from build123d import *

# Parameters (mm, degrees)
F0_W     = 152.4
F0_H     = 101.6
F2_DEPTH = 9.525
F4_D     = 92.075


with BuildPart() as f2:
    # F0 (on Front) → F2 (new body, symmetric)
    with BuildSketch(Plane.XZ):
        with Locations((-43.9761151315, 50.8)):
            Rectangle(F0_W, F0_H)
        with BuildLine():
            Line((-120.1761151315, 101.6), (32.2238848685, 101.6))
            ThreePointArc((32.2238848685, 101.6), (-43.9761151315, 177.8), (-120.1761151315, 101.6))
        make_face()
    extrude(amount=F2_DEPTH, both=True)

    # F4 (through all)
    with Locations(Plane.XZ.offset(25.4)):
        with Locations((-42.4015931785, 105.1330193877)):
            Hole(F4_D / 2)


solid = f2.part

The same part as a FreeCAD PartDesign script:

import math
import FreeCAD as App
import Part
import Sketcher

V = App.Vector
Q = App.Units.Quantity

doc = App.newDocument("Part")
body = doc.addObject("PartDesign::Body", "Body")

sketch1 = body.newObject("Sketcher::SketchObject", "Sketch")
sketch1.AttachmentSupport = (doc.getObject("XZ_Plane"), [""])
sketch1.MapMode = "FlatFace"
sketch1.addGeometry(Part.LineSegment(V(-120.176115, 101.6, 0), V(-120.176115, 0, 0)), False)
sketch1.addGeometry(Part.LineSegment(V(-120.176115, 0, 0), V(32.223885, 0, 0)), False)
sketch1.addGeometry(Part.LineSegment(V(32.223885, 0, 0), V(32.223885, 101.6, 0)), False)
sketch1.addGeometry(Part.ArcOfCircle(Part.Circle(V(-43.976115, 101.6, 0), V(0, 0, 1), 76.2), math.radians(0), math.radians(180)), False)
sketch1.addConstraint(Sketcher.Constraint("Coincident", 0, 2, 1, 1))
sketch1.addConstraint(Sketcher.Constraint("Coincident", 1, 2, 2, 1))
sketch1.addConstraint(Sketcher.Constraint("Tangent", 2, 2, 3, 1))
sketch1.addConstraint(Sketcher.Constraint("Tangent", 3, 2, 0, 1))
sketch1.addConstraint(Sketcher.Constraint("Vertical", 0))
sketch1.addConstraint(Sketcher.Constraint("Horizontal", 1))
sketch1.addConstraint(Sketcher.Constraint("Vertical", 2))
sketch1.addConstraint(Sketcher.Constraint("PointOnObject", 0, 2, -1))
sketch1.addConstraint(Sketcher.Constraint("Radius", 3, Q("3 in")))
sketch1.addConstraint(Sketcher.Constraint("DistanceY", 0, 2, 0, 1, Q("4 in")))
sketch1.addConstraint(Sketcher.Constraint("DistanceX", 3, 3, -1, 1, Q("43.976115 mm")))
pad1 = body.newObject("PartDesign::Pad", "Pad")
pad1.Profile = sketch1
pad1.Length = Q("0.75 in")
pad1.Midplane = True

sketch2 = body.newObject("Sketcher::SketchObject", "Sketch001")
sketch2.AttachmentSupport = (doc.getObject("XZ_Plane"), [""])
sketch2.MapMode = "FlatFace"
sketch2.AttachmentOffset = App.Placement(V(0, 0, 1 * 25.4), App.Rotation())
sketch2.addGeometry(Part.Circle(V(-42.401593, 105.133019, 0), V(0, 0, 1), 46.0375), False)
sketch2.addConstraint(Sketcher.Constraint("Diameter", 0, Q("3.625 in")))
sketch2.addConstraint(Sketcher.Constraint("DistanceY", -1, 1, 0, 3, Q("105.133019 mm")))
sketch2.addConstraint(Sketcher.Constraint("DistanceX", 0, 3, -1, 1, Q("42.401593 mm")))
doc.recompute()
hole = body.newObject("PartDesign::Hole", "Hole")
hole.Profile = sketch2
hole.ThreadType = "None"
hole.Diameter = Q("3.625 in")
hole.DepthType = "ThroughAll"

doc.recompute()
